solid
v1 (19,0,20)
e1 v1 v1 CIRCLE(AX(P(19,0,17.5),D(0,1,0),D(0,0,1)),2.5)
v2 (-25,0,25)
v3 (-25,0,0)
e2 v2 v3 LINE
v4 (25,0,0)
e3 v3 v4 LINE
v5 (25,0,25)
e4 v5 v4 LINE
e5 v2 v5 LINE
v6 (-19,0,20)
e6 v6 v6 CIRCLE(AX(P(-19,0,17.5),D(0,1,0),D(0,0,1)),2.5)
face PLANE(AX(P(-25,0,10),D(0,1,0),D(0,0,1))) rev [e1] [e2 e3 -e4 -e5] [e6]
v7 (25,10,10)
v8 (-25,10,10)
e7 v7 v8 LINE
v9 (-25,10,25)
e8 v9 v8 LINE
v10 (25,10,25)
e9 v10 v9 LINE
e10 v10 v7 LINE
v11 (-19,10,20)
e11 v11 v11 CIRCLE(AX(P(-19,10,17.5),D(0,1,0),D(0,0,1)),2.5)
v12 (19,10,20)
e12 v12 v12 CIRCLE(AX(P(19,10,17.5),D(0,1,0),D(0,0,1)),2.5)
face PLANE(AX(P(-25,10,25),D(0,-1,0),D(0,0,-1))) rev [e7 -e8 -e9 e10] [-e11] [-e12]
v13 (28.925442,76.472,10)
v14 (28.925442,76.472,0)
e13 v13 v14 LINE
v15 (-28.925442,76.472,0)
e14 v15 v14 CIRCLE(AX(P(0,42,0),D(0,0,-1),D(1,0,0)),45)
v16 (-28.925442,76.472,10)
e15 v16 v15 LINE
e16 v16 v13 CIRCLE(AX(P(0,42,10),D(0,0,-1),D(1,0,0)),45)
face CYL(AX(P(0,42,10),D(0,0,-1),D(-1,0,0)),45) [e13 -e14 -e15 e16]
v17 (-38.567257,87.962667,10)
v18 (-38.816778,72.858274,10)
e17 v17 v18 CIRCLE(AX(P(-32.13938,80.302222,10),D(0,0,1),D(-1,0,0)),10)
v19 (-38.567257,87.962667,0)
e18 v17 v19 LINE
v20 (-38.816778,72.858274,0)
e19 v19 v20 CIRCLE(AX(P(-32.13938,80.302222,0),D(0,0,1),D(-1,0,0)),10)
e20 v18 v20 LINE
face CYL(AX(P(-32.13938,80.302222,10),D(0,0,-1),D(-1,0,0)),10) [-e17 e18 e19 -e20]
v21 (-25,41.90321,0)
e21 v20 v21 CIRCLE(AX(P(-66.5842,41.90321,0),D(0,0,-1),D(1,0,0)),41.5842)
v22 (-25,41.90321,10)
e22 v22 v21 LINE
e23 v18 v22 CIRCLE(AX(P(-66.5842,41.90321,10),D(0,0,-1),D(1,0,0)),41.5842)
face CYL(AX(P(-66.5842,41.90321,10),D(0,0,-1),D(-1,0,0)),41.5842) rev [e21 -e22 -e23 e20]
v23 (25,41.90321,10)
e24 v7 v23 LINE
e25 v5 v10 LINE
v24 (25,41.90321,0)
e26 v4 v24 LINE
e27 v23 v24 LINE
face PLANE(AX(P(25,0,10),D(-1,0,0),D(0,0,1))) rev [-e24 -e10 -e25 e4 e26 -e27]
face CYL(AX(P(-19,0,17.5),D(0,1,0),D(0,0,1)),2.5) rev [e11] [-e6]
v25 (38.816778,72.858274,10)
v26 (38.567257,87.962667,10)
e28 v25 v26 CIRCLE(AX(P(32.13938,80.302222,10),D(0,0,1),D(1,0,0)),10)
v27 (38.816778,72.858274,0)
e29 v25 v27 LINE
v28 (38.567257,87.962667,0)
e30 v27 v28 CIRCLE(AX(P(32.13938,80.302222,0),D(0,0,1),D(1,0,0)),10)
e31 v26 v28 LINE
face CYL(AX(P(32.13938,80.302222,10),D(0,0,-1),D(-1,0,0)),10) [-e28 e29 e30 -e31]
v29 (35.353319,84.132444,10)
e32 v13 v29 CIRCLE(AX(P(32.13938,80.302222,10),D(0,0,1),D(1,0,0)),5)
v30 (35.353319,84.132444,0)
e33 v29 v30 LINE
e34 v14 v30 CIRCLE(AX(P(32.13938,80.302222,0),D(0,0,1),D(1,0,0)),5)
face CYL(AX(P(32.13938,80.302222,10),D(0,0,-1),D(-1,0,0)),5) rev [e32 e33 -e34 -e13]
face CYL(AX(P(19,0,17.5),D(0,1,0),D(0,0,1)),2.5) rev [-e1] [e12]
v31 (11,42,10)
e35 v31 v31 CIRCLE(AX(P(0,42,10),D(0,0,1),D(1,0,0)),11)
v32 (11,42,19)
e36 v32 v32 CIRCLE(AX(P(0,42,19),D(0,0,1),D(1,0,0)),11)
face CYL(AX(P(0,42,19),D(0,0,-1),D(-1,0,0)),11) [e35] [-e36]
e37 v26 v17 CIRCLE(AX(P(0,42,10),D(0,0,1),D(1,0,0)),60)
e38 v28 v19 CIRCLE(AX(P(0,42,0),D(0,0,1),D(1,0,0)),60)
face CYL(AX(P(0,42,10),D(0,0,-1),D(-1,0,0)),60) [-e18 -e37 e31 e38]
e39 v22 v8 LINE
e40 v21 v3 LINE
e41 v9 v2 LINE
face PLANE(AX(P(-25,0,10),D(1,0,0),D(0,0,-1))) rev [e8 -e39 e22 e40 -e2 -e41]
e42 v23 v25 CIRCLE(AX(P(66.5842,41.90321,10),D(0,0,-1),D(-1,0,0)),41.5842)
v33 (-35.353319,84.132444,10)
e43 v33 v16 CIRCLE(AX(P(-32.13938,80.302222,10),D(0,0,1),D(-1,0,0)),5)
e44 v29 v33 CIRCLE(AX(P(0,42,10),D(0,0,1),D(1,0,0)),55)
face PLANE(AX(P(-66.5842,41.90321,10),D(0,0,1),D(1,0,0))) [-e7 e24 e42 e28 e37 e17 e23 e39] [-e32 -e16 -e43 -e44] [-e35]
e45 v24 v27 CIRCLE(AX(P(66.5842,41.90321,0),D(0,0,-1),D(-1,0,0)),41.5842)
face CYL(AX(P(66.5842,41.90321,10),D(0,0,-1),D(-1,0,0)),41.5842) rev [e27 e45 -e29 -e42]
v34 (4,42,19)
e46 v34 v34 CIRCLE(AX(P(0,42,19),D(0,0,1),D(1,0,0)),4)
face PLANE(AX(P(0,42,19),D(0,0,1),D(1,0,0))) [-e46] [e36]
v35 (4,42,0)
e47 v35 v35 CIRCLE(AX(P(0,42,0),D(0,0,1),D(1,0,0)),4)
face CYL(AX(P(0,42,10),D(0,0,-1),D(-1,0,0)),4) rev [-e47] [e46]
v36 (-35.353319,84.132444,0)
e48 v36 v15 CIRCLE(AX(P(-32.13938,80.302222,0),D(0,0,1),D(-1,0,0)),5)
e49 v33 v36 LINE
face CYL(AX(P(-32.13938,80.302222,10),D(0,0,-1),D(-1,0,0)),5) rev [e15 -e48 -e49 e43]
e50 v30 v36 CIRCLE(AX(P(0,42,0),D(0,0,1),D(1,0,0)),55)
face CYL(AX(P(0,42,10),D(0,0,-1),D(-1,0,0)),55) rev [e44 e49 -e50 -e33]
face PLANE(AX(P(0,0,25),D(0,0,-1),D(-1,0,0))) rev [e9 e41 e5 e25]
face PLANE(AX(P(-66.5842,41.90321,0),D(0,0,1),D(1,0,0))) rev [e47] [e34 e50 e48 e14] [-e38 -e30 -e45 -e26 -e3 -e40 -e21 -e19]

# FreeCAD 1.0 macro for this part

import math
import FreeCAD as App
import Part
import Sketcher

V = App.Vector


def add_polygon(sketch, points):
    """Adds a closed chain of lines whose ends are joined by coincident constraints."""
    first, n = sketch.GeometryCount, len(points)
    for a, b in zip(points, points[1:] + points[:1]):
        sketch.addGeometry(Part.LineSegment(App.Vector(*a, 0), App.Vector(*b, 0)), False)
    for i in range(n):
        sketch.addConstraint(Sketcher.Constraint("Coincident", first + i, 2, first + (i + 1) % n, 1))

doc = App.newDocument("Part")
body = doc.addObject("PartDesign::Body", "Body")

sketch1 = body.newObject("Sketcher::SketchObject", "Sketch")
sketch1.AttachmentSupport = (doc.getObject("XY_Plane"), [""])
sketch1.MapMode = "FlatFace"
sketch1.addGeometry([
    Part.LineSegment(V(25, 0, 0), V(25, 41.90321, 0)),
    Part.ArcOfCircle(Part.Circle(V(66.5842, 41.90321, 0), V(0, 0, 1), 41.5842), math.radians(131.892855), math.radians(180)),
    Part.ArcOfCircle(Part.Circle(V(32.13938, 80.302222, 0), V(0, 0, 1), 10), math.radians(-48.107145), math.radians(50)),
    Part.ArcOfCircle(Part.Circle(V(0, 42, 0), V(0, 0, 1), 60), math.radians(50), math.radians(130)),
    Part.ArcOfCircle(Part.Circle(V(-32.13938, 80.302222, 0), V(0, 0, 1), 10), math.radians(130), math.radians(228.107145)),
    Part.ArcOfCircle(Part.Circle(V(-66.5842, 41.90321, 0), V(0, 0, 1), 41.5842), math.radians(0), math.radians(48.107145)),
    Part.LineSegment(V(-25, 41.90321, 0), V(-25, 0, 0)),
    Part.LineSegment(V(-25, 0, 0), V(25, 0, 0)),
    Part.Circle(V(0, 42, 0), V(0, 0, 1), 4),
    Part.ArcOfCircle(Part.Circle(V(32.13938, 80.302222, 0), V(0, 0, 1), 5), math.radians(-130), math.radians(50)),
    Part.ArcOfCircle(Part.Circle(V(0, 42, 0), V(0, 0, 1), 45), math.radians(50), math.radians(130)),
    Part.ArcOfCircle(Part.Circle(V(-32.13938, 80.302222, 0), V(0, 0, 1), 5), math.radians(130), math.radians(310)),
    Part.ArcOfCircle(Part.Circle(V(0, 42, 0), V(0, 0, 1), 55), math.radians(50), math.radians(130)),
], False)
sketch1.addConstraint([
    Sketcher.Constraint("Tangent", 0, 2, 1, 2),
    Sketcher.Constraint("Tangent", 1, 1, 2, 1),
    Sketcher.Constraint("Tangent", 2, 2, 3, 1),
    Sketcher.Constraint("Tangent", 3, 2, 4, 1),
    Sketcher.Constraint("Tangent", 4, 2, 5, 2),
    Sketcher.Constraint("Tangent", 5, 1, 6, 1),
    Sketcher.Constraint("Coincident", 6, 2, 7, 1),
    Sketcher.Constraint("Coincident", 7, 2, 0, 1),
    Sketcher.Constraint("Tangent", 9, 1, 10, 1),
    Sketcher.Constraint("Tangent", 10, 2, 11, 2),
    Sketcher.Constraint("Tangent", 11, 1, 12, 2),
    Sketcher.Constraint("Tangent", 12, 1, 9, 2),
    Sketcher.Constraint("Vertical", 0),
    Sketcher.Constraint("Vertical", 6),
    Sketcher.Constraint("Horizontal", 7),
    Sketcher.Constraint("Coincident", 8, 3, 3, 3),
    Sketcher.Constraint("Coincident", 9, 3, 2, 3),
    Sketcher.Constraint("Coincident", 10, 3, 3, 3),
    Sketcher.Constraint("Coincident", 11, 3, 4, 3),
    Sketcher.Constraint("Coincident", 12, 3, 3, 3),
    Sketcher.Constraint("Equal", 1, 5),
    Sketcher.Constraint("Symmetric", 6, 2, 7, 2, -1, 1),
    Sketcher.Constraint("Symmetric", 2, 3, 4, 3, -2),
    Sketcher.Constraint("Diameter", 8, 8.0),
    Sketcher.Constraint("Radius", 2, 10.0),
    Sketcher.Constraint("Radius", 3, 60.0),
    Sketcher.Constraint("Radius", 9, 5.0),
    Sketcher.Constraint("DistanceX", 7, 1, 7, 2, 50.0),
    Sketcher.Constraint("DistanceY", -1, 1, 3, 3, 42.0),
    Sketcher.Constraint("Radius", 1, 41.5842),
    Sketcher.Constraint("DistanceY", -1, 1, 9, 1, 76.472),
])
pad1 = body.newObject("PartDesign::Pad", "Pad")
pad1.Profile = sketch1
pad1.Length = 10

sketch2 = body.newObject("Sketcher::SketchObject", "Sketch001")
sketch2.AttachmentSupport = (doc.getObject("XY_Plane"), [""])
sketch2.MapMode = "FlatFace"
sketch2.AttachmentOffset = App.Placement(V(0, 0, 10), App.Rotation())
add_polygon(sketch2, [(-25, 10), (-25, 0), (25, 0), (25, 10)])
sketch2.addConstraint([
    Sketcher.Constraint("Vertical", 0),
    Sketcher.Constraint("Horizontal", 1),
    Sketcher.Constraint("Vertical", 2),
    Sketcher.Constraint("Horizontal", 3),
    Sketcher.Constraint("Symmetric", 0, 2, 1, 2, -1, 1),
    Sketcher.Constraint("DistanceX", 1, 1, 1, 2, 50.0),
    Sketcher.Constraint("DistanceY", 0, 2, 0, 1, 10.0),
])
pad2 = body.newObject("PartDesign::Pad", "Pad001")
pad2.Profile = sketch2
pad2.Length = 15

sketch3 = body.newObject("Sketcher::SketchObject", "Sketch002")
sketch3.AttachmentSupport = (doc.getObject("XZ_Plane"), [""])
sketch3.MapMode = "FlatFace"
sketch3.AttachmentOffset = App.Placement(V(0, 0, -10), App.Rotation())
sketch3.addGeometry([
    Part.Circle(V(-19, 17.5, 0), V(0, 0, 1), 2.5),
    Part.Circle(V(19, 17.5, 0), V(0, 0, 1), 2.5),
], False)
sketch3.addConstraint([
    Sketcher.Constraint("Equal", 0, 1),
    Sketcher.Constraint("Symmetric", 0, 3, 1, 3, -2),
    Sketcher.Constraint("Diameter", 0, 5.0),
    Sketcher.Constraint("DistanceX", 0, 3, -1, 1, 19.0),
    Sketcher.Constraint("DistanceY", -1, 1, 0, 3, 17.5),
])
pocket1 = body.newObject("PartDesign::Pocket", "Pocket")
pocket1.Profile = sketch3
pocket1.Type = "ThroughAll"
pocket1.Reversed = True

sketch4 = body.newObject("Sketcher::SketchObject", "Sketch003")
sketch4.AttachmentSupport = (doc.getObject("XY_Plane"), [""])
sketch4.MapMode = "FlatFace"
sketch4.AttachmentOffset = App.Placement(V(0, 0, 10), App.Rotation())
sketch4.addGeometry([
    Part.Circle(V(0, 42, 0), V(0, 0, 1), 11),
    Part.Circle(V(0, 42, 0), V(0, 0, 1), 4),
], False)
sketch4.addConstraint([
    Sketcher.Constraint("Coincident", 1, 3, 0, 3),
    Sketcher.Constraint("PointOnObject", 0, 3, -2),
    Sketcher.Constraint("Diameter", 0, 22.0),
    Sketcher.Constraint("Diameter", 1, 8.0),
    Sketcher.Constraint("DistanceY", -1, 1, 0, 3, 42.0),
])
pad3 = body.newObject("PartDesign::Pad", "Pad002")
pad3.Profile = sketch4
pad3.Length = 9

doc.recompute()
